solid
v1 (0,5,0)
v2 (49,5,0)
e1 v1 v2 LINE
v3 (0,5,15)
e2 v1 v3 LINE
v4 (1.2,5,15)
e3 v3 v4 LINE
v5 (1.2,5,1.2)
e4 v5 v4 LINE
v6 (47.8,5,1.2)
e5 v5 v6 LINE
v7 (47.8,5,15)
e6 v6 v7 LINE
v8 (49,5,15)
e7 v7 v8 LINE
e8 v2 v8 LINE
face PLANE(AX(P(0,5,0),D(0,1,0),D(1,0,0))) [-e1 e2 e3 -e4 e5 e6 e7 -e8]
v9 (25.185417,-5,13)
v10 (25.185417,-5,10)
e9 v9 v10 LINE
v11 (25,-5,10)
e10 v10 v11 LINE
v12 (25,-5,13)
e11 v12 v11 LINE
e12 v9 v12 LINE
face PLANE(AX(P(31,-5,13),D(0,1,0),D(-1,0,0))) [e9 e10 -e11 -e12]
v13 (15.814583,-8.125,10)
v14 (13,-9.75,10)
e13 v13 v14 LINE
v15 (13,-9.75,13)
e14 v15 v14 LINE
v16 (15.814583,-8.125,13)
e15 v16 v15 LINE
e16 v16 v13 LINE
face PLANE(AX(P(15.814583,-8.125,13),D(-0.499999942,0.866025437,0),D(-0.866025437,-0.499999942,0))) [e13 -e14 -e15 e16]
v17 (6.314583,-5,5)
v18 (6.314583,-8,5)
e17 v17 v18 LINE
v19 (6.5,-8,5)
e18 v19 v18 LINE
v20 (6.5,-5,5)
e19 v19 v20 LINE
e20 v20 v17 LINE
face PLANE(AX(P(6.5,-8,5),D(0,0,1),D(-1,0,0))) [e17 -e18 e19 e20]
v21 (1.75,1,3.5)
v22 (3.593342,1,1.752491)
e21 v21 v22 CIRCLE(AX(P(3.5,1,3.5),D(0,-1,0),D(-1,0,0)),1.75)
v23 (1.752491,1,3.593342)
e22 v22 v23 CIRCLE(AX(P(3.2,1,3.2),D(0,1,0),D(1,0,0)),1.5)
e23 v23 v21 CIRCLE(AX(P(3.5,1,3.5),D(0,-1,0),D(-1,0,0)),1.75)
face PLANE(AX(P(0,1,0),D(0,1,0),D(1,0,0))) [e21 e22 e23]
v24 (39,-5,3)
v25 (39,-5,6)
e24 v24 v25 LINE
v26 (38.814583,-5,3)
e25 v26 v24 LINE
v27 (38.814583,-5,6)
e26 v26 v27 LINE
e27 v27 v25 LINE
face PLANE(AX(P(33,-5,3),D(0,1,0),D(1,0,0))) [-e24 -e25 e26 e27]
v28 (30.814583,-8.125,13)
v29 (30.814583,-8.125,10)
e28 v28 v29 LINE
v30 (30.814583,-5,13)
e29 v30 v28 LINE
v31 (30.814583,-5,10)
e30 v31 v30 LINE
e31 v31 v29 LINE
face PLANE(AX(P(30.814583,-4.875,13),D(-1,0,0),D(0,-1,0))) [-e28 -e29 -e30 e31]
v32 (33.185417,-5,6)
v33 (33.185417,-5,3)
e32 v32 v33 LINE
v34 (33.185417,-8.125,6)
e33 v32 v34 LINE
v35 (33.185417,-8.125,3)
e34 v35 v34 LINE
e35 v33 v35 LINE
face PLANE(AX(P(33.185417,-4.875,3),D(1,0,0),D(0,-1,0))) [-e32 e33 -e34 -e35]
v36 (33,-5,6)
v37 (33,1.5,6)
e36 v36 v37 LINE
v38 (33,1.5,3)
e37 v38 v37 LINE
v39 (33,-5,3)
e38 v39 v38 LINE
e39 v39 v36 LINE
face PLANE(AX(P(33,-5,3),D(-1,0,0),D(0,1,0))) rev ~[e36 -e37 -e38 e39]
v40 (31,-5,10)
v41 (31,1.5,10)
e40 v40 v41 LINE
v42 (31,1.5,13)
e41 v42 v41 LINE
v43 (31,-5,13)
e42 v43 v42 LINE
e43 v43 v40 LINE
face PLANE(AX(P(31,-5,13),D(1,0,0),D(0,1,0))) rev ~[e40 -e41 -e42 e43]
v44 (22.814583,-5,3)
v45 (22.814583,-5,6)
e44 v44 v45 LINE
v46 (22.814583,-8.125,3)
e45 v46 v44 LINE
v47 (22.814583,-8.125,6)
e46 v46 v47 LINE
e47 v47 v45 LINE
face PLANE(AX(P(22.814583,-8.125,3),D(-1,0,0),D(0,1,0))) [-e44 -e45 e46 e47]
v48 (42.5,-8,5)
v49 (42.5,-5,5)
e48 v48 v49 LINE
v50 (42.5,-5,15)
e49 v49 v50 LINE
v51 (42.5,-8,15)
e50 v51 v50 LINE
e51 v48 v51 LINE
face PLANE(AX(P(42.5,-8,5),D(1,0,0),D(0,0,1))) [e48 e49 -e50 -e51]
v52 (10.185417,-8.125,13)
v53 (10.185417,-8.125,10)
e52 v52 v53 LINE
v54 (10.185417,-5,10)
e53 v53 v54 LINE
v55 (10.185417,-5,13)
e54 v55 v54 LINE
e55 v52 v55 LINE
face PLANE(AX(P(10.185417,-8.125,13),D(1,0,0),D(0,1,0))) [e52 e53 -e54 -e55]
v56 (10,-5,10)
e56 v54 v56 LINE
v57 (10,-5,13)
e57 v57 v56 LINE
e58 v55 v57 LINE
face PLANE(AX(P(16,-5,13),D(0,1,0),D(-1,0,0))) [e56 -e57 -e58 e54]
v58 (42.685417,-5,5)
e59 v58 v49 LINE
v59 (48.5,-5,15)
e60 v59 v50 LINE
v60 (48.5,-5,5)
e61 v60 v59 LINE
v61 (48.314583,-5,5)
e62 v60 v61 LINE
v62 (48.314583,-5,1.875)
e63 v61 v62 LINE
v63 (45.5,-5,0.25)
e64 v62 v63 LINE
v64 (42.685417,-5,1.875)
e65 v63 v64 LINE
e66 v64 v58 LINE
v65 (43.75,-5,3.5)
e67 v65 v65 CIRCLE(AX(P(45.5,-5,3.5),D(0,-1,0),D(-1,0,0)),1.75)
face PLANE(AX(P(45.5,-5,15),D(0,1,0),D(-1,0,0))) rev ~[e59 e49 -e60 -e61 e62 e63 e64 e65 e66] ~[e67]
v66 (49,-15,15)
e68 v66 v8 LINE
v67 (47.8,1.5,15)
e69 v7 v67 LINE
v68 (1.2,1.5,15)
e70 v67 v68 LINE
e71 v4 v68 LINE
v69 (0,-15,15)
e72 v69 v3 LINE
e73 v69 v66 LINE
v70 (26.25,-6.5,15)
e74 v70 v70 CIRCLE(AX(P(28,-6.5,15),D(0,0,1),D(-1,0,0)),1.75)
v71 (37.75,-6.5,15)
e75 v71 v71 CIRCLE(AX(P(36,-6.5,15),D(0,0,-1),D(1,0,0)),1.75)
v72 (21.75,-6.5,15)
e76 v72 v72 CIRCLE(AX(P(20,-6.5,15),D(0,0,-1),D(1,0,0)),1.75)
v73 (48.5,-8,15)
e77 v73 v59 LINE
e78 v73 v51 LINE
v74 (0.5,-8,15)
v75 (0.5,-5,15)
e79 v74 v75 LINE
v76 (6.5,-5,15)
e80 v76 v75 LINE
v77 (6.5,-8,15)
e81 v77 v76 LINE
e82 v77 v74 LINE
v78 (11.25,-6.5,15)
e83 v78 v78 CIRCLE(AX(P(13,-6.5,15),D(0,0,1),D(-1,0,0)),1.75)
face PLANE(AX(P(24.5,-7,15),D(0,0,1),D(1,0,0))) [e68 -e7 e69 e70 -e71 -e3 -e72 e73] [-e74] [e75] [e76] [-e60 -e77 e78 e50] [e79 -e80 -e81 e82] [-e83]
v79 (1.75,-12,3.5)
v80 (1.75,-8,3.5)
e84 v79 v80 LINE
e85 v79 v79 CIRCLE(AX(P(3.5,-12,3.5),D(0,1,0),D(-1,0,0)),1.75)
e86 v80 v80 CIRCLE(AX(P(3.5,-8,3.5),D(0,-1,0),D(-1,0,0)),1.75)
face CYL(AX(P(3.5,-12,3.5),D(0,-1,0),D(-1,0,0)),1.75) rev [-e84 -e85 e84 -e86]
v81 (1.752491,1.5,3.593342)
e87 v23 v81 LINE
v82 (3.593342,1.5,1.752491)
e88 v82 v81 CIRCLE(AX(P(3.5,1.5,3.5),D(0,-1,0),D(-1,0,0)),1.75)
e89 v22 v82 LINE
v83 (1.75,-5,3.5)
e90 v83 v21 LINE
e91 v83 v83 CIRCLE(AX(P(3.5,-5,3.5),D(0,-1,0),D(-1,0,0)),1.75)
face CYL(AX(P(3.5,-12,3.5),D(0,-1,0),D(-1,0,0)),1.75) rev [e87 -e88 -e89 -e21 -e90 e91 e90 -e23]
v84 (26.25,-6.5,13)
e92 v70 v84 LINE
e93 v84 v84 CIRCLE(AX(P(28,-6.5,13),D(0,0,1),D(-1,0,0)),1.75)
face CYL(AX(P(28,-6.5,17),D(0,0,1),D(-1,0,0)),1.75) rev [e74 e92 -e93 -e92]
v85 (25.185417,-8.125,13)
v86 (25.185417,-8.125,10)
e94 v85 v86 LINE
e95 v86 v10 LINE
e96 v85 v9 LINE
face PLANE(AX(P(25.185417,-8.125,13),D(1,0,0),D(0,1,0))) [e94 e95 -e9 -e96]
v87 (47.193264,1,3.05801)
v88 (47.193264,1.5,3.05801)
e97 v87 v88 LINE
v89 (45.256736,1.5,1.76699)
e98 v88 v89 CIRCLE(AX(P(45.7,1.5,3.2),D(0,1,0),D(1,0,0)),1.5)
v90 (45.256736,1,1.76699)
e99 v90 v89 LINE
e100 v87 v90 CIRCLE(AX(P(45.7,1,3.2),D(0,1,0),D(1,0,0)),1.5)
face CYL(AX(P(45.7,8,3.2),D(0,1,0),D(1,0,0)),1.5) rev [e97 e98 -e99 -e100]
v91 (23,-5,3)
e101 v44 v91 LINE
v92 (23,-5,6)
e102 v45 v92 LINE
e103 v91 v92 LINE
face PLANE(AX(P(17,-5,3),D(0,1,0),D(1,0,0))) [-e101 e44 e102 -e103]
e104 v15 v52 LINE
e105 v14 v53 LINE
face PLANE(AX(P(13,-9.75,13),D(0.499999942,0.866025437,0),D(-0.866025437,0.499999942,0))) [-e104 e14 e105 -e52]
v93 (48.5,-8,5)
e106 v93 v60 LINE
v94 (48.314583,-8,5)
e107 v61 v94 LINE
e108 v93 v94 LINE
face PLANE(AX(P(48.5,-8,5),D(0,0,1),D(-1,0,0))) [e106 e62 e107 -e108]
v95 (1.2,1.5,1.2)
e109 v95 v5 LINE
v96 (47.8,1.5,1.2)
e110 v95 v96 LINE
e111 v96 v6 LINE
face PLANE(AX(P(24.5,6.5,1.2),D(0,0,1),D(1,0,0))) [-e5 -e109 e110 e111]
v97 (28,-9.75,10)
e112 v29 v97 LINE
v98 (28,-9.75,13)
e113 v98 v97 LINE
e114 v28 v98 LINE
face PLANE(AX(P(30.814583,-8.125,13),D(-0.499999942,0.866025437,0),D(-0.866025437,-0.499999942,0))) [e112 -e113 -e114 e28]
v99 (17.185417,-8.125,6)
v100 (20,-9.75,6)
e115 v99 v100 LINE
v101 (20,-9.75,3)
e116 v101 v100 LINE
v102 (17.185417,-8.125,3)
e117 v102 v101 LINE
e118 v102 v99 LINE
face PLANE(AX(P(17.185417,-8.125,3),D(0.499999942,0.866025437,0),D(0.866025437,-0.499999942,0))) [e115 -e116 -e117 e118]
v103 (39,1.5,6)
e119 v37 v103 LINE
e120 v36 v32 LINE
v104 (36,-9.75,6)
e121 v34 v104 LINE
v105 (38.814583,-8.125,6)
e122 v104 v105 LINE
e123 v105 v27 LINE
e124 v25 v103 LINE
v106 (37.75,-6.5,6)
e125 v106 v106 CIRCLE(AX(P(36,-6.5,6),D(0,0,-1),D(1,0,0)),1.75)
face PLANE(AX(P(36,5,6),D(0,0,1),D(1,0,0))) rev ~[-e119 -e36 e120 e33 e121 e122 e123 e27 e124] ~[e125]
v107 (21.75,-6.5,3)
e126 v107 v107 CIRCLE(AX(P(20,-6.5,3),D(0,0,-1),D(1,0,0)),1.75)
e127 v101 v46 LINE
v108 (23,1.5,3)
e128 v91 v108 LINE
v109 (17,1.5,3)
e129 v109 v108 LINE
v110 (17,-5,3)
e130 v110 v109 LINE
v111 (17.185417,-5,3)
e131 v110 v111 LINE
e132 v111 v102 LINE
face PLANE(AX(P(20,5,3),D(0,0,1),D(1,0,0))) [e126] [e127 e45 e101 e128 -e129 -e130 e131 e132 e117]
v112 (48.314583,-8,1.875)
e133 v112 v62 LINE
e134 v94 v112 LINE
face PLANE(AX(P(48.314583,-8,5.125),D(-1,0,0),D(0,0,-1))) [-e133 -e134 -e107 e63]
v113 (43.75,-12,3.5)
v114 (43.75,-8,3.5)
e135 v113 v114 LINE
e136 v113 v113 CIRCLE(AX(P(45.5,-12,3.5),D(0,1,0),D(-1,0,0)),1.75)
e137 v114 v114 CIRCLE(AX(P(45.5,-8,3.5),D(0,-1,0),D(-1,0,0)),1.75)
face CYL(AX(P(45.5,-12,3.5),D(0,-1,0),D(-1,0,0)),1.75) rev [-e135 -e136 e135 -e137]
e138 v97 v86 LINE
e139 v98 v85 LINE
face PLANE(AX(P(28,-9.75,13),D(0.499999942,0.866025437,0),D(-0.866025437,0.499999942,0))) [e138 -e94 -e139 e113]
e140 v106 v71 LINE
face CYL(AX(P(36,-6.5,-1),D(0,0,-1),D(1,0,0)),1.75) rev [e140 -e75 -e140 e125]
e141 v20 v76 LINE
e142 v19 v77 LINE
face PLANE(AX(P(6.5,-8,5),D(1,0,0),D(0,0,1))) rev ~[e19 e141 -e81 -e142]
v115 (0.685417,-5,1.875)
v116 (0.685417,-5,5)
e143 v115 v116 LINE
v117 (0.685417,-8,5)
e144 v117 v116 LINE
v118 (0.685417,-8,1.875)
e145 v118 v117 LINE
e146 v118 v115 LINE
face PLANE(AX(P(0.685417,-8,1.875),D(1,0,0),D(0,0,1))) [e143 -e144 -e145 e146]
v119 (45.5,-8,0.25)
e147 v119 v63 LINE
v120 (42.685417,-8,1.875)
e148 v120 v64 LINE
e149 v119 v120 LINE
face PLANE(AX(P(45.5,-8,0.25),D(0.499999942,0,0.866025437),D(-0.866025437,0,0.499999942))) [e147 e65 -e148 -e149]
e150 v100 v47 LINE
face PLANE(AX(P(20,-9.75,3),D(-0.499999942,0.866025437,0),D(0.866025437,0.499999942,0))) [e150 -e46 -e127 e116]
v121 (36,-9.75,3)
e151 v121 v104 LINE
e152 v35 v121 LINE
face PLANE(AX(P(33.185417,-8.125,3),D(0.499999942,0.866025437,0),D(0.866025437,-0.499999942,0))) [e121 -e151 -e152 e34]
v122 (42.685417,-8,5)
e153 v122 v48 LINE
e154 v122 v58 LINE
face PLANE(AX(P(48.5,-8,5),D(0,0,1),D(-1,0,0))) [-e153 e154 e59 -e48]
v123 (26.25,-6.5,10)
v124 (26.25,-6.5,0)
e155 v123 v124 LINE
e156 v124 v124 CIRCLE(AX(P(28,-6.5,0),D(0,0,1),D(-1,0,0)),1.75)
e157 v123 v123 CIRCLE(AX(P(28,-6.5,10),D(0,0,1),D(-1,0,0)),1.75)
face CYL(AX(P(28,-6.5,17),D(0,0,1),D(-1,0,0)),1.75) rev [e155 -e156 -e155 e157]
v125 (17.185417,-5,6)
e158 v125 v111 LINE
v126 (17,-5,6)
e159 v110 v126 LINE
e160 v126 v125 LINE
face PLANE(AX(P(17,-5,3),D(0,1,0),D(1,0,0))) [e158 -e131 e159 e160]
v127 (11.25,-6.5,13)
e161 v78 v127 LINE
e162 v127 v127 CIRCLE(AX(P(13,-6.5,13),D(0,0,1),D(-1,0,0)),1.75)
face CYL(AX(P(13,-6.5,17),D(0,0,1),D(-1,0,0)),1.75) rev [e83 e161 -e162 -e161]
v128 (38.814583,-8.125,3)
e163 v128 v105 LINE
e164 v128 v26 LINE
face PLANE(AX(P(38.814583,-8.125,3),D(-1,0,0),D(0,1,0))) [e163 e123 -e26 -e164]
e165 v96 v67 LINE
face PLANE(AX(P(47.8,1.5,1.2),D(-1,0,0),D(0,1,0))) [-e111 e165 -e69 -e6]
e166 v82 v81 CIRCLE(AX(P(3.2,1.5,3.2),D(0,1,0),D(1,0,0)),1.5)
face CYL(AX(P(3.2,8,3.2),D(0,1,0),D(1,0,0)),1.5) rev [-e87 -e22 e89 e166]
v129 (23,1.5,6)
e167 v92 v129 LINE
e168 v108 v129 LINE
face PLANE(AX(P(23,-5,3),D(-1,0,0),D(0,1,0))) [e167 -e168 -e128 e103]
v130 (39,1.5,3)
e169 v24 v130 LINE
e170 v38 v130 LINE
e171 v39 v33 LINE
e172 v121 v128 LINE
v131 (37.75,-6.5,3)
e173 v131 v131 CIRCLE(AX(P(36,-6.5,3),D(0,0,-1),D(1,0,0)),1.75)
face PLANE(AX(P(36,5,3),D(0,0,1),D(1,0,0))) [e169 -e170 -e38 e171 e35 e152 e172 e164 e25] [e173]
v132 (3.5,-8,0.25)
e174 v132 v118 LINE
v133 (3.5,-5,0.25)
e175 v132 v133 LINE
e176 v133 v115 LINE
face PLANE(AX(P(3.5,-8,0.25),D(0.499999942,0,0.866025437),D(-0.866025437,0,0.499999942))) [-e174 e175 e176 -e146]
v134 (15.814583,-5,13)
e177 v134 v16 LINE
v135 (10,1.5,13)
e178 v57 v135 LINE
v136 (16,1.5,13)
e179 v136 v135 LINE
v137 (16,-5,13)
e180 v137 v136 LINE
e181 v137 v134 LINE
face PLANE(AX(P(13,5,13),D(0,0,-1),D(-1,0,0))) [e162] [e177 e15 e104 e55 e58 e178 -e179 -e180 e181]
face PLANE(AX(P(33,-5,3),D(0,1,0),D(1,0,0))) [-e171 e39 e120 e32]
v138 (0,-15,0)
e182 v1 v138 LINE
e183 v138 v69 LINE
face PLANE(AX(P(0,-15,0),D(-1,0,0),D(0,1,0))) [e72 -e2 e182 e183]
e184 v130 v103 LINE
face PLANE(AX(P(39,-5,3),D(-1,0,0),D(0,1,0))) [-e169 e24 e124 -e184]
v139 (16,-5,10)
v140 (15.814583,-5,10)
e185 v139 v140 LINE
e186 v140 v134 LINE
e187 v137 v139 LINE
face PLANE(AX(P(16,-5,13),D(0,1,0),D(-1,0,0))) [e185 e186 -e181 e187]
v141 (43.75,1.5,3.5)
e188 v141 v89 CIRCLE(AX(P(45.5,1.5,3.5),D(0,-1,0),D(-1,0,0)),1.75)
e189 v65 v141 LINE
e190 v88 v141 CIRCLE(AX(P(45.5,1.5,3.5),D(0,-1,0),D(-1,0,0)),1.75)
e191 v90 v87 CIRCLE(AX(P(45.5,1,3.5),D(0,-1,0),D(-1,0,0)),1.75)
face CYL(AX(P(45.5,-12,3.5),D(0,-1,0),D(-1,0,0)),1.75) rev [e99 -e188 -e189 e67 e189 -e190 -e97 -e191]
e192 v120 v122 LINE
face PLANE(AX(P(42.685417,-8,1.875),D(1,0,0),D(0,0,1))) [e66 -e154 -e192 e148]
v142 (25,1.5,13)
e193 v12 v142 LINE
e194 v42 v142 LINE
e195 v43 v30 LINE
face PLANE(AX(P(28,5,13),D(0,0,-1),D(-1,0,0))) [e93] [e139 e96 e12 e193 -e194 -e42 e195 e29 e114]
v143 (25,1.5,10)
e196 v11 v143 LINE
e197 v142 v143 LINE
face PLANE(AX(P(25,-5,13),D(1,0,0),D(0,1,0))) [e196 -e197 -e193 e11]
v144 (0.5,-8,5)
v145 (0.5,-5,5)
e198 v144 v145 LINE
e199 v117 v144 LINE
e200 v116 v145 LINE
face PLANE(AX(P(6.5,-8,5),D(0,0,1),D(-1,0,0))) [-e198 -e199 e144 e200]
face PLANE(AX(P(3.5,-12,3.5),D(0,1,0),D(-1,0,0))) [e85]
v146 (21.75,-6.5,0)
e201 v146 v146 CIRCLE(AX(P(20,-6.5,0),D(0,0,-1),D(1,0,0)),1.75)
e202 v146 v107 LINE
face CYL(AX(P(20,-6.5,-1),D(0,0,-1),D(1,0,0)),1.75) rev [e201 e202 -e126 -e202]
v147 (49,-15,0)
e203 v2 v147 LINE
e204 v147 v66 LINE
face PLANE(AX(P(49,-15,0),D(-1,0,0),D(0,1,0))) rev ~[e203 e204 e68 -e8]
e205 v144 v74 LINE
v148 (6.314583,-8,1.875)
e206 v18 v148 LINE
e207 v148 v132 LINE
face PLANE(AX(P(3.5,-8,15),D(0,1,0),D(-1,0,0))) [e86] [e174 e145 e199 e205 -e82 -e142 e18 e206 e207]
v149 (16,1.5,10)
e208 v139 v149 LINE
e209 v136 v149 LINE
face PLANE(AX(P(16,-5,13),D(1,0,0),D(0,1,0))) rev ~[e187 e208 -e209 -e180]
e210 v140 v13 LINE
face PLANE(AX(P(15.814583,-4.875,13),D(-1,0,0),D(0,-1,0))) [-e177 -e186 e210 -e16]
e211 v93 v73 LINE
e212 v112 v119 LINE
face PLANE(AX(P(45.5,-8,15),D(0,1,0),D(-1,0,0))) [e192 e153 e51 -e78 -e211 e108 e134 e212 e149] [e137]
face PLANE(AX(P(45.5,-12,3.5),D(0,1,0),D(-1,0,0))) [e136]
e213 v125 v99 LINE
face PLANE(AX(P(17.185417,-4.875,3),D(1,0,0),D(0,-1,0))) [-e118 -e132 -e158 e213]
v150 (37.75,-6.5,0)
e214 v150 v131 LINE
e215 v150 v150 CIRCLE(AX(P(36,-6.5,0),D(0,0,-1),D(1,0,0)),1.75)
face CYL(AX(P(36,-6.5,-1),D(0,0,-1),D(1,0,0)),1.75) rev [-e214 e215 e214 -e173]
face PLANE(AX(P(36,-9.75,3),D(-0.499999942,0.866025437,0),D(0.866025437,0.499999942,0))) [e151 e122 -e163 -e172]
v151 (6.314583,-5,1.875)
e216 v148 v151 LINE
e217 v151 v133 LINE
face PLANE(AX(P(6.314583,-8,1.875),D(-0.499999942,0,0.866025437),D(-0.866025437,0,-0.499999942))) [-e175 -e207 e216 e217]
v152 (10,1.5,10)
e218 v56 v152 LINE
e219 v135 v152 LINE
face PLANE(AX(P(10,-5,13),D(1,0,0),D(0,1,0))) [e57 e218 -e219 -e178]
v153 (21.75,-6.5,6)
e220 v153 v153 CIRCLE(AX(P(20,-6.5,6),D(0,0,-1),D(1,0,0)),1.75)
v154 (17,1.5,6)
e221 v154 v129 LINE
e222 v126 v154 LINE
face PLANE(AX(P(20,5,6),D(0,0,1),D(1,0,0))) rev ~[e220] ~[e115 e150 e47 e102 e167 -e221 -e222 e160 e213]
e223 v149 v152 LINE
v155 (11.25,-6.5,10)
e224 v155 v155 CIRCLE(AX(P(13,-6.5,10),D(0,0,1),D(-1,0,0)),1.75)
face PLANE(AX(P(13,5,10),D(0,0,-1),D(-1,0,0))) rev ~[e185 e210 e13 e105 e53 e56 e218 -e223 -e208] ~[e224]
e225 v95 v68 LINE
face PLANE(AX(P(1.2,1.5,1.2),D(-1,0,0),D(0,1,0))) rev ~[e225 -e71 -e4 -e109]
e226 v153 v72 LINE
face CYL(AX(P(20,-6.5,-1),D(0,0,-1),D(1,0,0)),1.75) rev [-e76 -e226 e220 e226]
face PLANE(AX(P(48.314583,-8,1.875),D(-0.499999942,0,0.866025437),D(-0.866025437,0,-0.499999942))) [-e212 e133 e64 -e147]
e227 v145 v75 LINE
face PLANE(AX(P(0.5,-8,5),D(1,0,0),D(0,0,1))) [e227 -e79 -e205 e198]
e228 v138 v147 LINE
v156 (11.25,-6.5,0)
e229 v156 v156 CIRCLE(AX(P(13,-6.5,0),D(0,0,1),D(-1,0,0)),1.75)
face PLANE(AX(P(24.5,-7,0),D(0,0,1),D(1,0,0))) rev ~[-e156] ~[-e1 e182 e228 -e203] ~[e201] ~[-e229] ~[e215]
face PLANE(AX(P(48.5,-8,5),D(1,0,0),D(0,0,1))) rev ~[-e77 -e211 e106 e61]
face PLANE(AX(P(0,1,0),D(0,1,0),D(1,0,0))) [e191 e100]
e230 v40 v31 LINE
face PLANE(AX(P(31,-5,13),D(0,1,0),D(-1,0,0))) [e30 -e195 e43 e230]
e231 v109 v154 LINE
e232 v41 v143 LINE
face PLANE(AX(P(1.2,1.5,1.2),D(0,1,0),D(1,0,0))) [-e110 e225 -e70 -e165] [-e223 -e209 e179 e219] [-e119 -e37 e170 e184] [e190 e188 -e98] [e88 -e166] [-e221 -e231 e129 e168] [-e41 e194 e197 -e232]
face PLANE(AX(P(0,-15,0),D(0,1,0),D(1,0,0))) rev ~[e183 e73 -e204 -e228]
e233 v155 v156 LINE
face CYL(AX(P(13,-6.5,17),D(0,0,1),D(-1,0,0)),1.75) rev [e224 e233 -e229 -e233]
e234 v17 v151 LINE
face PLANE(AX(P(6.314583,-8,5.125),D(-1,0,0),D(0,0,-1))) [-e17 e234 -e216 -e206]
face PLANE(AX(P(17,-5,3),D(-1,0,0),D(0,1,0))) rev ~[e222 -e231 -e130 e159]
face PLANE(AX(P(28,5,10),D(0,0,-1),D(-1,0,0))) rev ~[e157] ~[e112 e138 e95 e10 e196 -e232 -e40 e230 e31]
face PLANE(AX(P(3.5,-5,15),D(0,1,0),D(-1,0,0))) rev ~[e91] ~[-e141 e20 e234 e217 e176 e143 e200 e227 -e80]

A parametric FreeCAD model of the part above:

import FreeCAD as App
import Part
import Sketcher
Q = App.Units.Quantity


def add_polygon(sketch, points):
    """Adds a closed chain of lines whose ends are joined by coincident constraints."""
    first, n = sketch.GeometryCount, len(points)
    for a, b in zip(points, points[1:] + points[:1]):
        sketch.addGeometry(Part.LineSegment(App.Vector(*a, 0), App.Vector(*b, 0)), False)
    for i in range(n):
        sketch.addConstraint(Sketcher.Constraint("Coincident", first + i, 2, first + (i + 1) % n, 1))

doc = App.newDocument("Part")
params = doc.addObject("Spreadsheet::Sheet", "Params")
for row, (alias, value) in enumerate([
    ("sketch1_height", "3.25 mm"),
    ("pad1_length", "3 mm"),
    ("sketch2_diameter", "3.5 mm"),
    ("pad2_length", "20 mm"),
    ("sketch3_width", "6 mm"),
    ("sketch3_height", "20 mm"),
    ("pad3_length", "3 mm"),
    ("sketch4_height", "3.25 mm"),
    ("pad4_length", "3 mm"),
    ("sketch5_diameter", "3.5 mm"),
    ("pad5_length", "20 mm"),
    ("sketch6_width", "6 mm"),
    ("sketch6_height", "20 mm"),
    ("pad6_length", "3 mm"),
    ("sketch7_height", "3.25 mm"),
    ("pad7_length", "3 mm"),
    ("sketch8_diameter", "3.5 mm"),
    ("pad8_length", "20 mm"),
    ("sketch9_width", "6 mm"),
    ("sketch9_height", "20 mm"),
    ("pad9_length", "3 mm"),
    ("sketch10_height", "3.25 mm"),
    ("pad10_length", "3 mm"),
    ("sketch11_diameter", "3.5 mm"),
    ("pad11_length", "20 mm"),
    ("sketch12_width", "6 mm"),
    ("sketch12_height", "20 mm"),
    ("pad12_length", "3 mm"),
    ("sketch13_height", "3.25 mm"),
    ("pad13_length", "3 mm"),
    ("sketch14_diameter", "3.5 mm"),
    ("pad14_length", "20 mm"),
    ("sketch15_width", "6 mm"),
    ("sketch15_height", "20 mm"),
    ("pad15_length", "3 mm"),
    ("sketch16_height", "3.25 mm"),
    ("pad16_length", "3 mm"),
    ("sketch17_diameter", "3.5 mm"),
    ("pad17_length", "20 mm"),
    ("sketch18_width", "6 mm"),
    ("sketch18_height", "20 mm"),
    ("pad18_length", "3 mm"),
    ("sketch19_diameter", "3 mm"),
    ("pad19_length", "10 mm"),
    ("sketch20_diameter", "3 mm"),
    ("pad20_length", "10 mm"),
    ("sketch21_height", "10 mm"),
    ("sketch21_width", "46.6 mm"),
    ("pad21_length", "21 mm"),
    ("sketch22_width", "49 mm"),
    ("sketch22_height", "5 mm"),
    ("pad22_length", "15 mm"),
    ("sketch23_width", "49 mm"),
    ("sketch23_height", "16 mm"),
    ("pad23_length", "15 mm"),
], start=1):
    params.set(f"A{row}", alias)
    params.set(f"B{row}", "=" + value)
    params.setAlias(f"B{row}", alias)

body = doc.addObject("PartDesign::Body", "Body")

sketch1 = doc.addObject("Sketcher::SketchObject", "Sketch")
body.addObject(sketch1)
sketch1.AttachmentSupport = (doc.XY_Plane, [""])
sketch1.MapMode = "FlatFace"
sketch1.AttachmentOffset = App.Placement(App.Vector(0, 0, 3), App.Rotation())
add_polygon(sketch1, [(34, 10.8), (31.2, 9.1), (31.2, 5.9), (34, 4.2), (36.8, 5.9), (36.8, 9.1)])
sketch1.addConstraint([
    Sketcher.Constraint("Vertical", 1),
    Sketcher.Constraint("Vertical", 4),
    Sketcher.Constraint("Parallel", 0, 3),
    Sketcher.Constraint("Parallel", 2, 5),
    Sketcher.Constraint("Horizontal", 1, 2, 3, 2),
    Sketcher.Constraint("Horizontal", 0, 2, 4, 2),
    Sketcher.Constraint("Vertical", 2, 2, 5, 2),
    Sketcher.Constraint("Angle", 0, Q("-150.000004 deg")),
    Sketcher.Constraint("DistanceX", -1, 1, 2, 2, 34.0),
    Sketcher.Constraint("DistanceY", 1, 2, 1, 1, 3.25),
    Sketcher.Constraint("DistanceY", 2, 2, 5, 2, 6.5),
    Sketcher.Constraint("DistanceY", -1, 1, 2, 2, 4.25),
])
sketch1.setExpression("Constraints[15]", "Params.sketch1_height")
pad1 = doc.addObject("PartDesign::Pad", "Pad")
body.addObject(pad1)
pad1.Profile = sketch1
pad1.setExpression("Length", "Params.pad1_length")
body2 = doc.addObject("PartDesign::Body", "Body001")

sketch2 = doc.addObject("Sketcher::SketchObject", "Sketch001")
body2.addObject(sketch2)
sketch2.AttachmentSupport = (doc.getObject("XY_Plane001"), [""])
sketch2.MapMode = "FlatFace"
sketch2.AttachmentOffset = App.Placement(App.Vector(0, 0, -1), App.Rotation())
sketch2.addGeometry(Part.Circle(App.Vector(34, 7.5, 0), App.Vector(0, 0, 1), 1.8), False)
sketch2.addConstraint([
    Sketcher.Constraint("Diameter", 0, 3.5),
    Sketcher.Constraint("DistanceX", -1, 1, 0, 3, 34.0),
    Sketcher.Constraint("DistanceY", -1, 1, 0, 3, 7.5),
])
sketch2.setExpression("Constraints[0]", "Params.sketch2_diameter")
pad2 = doc.addObject("PartDesign::Pad", "Pad001")
body2.addObject(pad2)
pad2.Profile = sketch2
pad2.setExpression("Length", "Params.pad2_length")
body3 = doc.addObject("PartDesign::Body", "Body002")

sketch3 = doc.addObject("Sketcher::SketchObject", "Sketch002")
body3.addObject(sketch3)
sketch3.AttachmentSupport = (doc.getObject("XY_Plane002"), [""])
sketch3.MapMode = "FlatFace"
sketch3.AttachmentOffset = App.Placement(App.Vector(0, 0, 3), App.Rotation())
add_polygon(sketch3, [(31, 29), (31, 9), (37, 9), (37, 29)])
sketch3.addConstraint([
    Sketcher.Constraint("Vertical", 0),
    Sketcher.Constraint("Horizontal", 1),
    Sketcher.Constraint("Vertical", 2),
    Sketcher.Constraint("Horizontal", 3),
    Sketcher.Constraint("DistanceX", 1, 1, 1, 2, 6.0),
    Sketcher.Constraint("DistanceY", 0, 2, 0, 1, 20.0),
    Sketcher.Constraint("DistanceX", -1, 1, 0, 2, 31.0),
    Sketcher.Constraint("DistanceY", -1, 1, 0, 2, 9.0),
])
sketch3.setExpression("Constraints[8]", "Params.sketch3_width")
sketch3.setExpression("Constraints[9]", "Params.sketch3_height")
pad3 = doc.addObject("PartDesign::Pad", "Pad002")
body3.addObject(pad3)
pad3.Profile = sketch3
pad3.setExpression("Length", "Params.pad3_length")
doc.recompute()

boolean = doc.addObject("PartDesign::Boolean", "Boolean")
body3.addObject(boolean)
boolean.Type = "Fuse"
boolean.addObjects([body])
doc.recompute()

boolean2 = doc.addObject("PartDesign::Boolean", "Boolean001")
body3.addObject(boolean2)
boolean2.Type = "Fuse"
boolean2.addObjects([body2])
body4 = doc.addObject("PartDesign::Body", "Body003")
doc.recompute()

body3.Placement = App.Placement(App.Vector(-14, -3, 16), App.Rotation(App.Vector(1, 0, 0), 180))
boolean3 = doc.addObject("PartDesign::Boolean", "Boolean002")
body4.addObject(boolean3)
boolean3.Type = "Fuse"
boolean3.addObjects([body3])
body5 = doc.addObject("PartDesign::Body", "Body004")

sketch4 = doc.addObject("Sketcher::SketchObject", "Sketch003")
body5.addObject(sketch4)
sketch4.AttachmentSupport = (doc.getObject("XY_Plane004"), [""])
sketch4.MapMode = "FlatFace"
sketch4.AttachmentOffset = App.Placement(App.Vector(0, 0, 3), App.Rotation())
add_polygon(sketch4, [(34, 10.8), (31.2, 9.1), (31.2, 5.9), (34, 4.2), (36.8, 5.9), (36.8, 9.1)])
sketch4.addConstraint([
    Sketcher.Constraint("Vertical", 1),
    Sketcher.Constraint("Vertical", 4),
    Sketcher.Constraint("Parallel", 0, 3),
    Sketcher.Constraint("Parallel", 2, 5),
    Sketcher.Constraint("Horizontal", 1, 2, 3, 2),
    Sketcher.Constraint("Horizontal", 0, 2, 4, 2),
    Sketcher.Constraint("Vertical", 2, 2, 5, 2),
    Sketcher.Constraint("Angle", 0, Q("-150.000004 deg")),
    Sketcher.Constraint("DistanceX", -1, 1, 2, 2, 34.0),
    Sketcher.Constraint("DistanceY", 1, 2, 1, 1, 3.25),
    Sketcher.Constraint("DistanceY", 2, 2, 5, 2, 6.5),
    Sketcher.Constraint("DistanceY", -1, 1, 2, 2, 4.25),
])
sketch4.setExpression("Constraints[15]", "Params.sketch4_height")
pad4 = doc.addObject("PartDesign::Pad", "Pad003")
body5.addObject(pad4)
pad4.Profile = sketch4
pad4.setExpression("Length", "Params.pad4_length")
body6 = doc.addObject("PartDesign::Body", "Body005")

sketch5 = doc.addObject("Sketcher::SketchObject", "Sketch004")
body6.addObject(sketch5)
sketch5.AttachmentSupport = (doc.getObject("XY_Plane005"), [""])
sketch5.MapMode = "FlatFace"
sketch5.AttachmentOffset = App.Placement(App.Vector(0, 0, -1), App.Rotation())
sketch5.addGeometry(Part.Circle(App.Vector(34, 7.5, 0), App.Vector(0, 0, 1), 1.8), False)
sketch5.addConstraint([
    Sketcher.Constraint("Diameter", 0, 3.5),
    Sketcher.Constraint("DistanceX", -1, 1, 0, 3, 34.0),
    Sketcher.Constraint("DistanceY", -1, 1, 0, 3, 7.5),
])
sketch5.setExpression("Constraints[0]", "Params.sketch5_diameter")
pad5 = doc.addObject("PartDesign::Pad", "Pad004")
body6.addObject(pad5)
pad5.Profile = sketch5
pad5.setExpression("Length", "Params.pad5_length")
body7 = doc.addObject("PartDesign::Body", "Body006")

sketch6 = doc.addObject("Sketcher::SketchObject", "Sketch005")
body7.addObject(sketch6)
sketch6.AttachmentSupport = (doc.getObject("XY_Plane006"), [""])
sketch6.MapMode = "FlatFace"
sketch6.AttachmentOffset = App.Placement(App.Vector(0, 0, 3), App.Rotation())
add_polygon(sketch6, [(31, 29), (31, 9), (37, 9), (37, 29)])
sketch6.addConstraint([
    Sketcher.Constraint("Vertical", 0),
    Sketcher.Constraint("Horizontal", 1),
    Sketcher.Constraint("Vertical", 2),
    Sketcher.Constraint("Horizontal", 3),
    Sketcher.Constraint("DistanceX", 1, 1, 1, 2, 6.0),
    Sketcher.Constraint("DistanceY", 0, 2, 0, 1, 20.0),
    Sketcher.Constraint("DistanceX", -1, 1, 0, 2, 31.0),
    Sketcher.Constraint("DistanceY", -1, 1, 0, 2, 9.0),
])
sketch6.setExpression("Constraints[8]", "Params.sketch6_width")
sketch6.setExpression("Constraints[9]", "Params.sketch6_height")
pad6 = doc.addObject("PartDesign::Pad", "Pad005")
body7.addObject(pad6)
pad6.Profile = sketch6
pad6.setExpression("Length", "Params.pad6_length")
doc.recompute()

boolean4 = doc.addObject("PartDesign::Boolean", "Boolean003")
body7.addObject(boolean4)
boolean4.Type = "Fuse"
boolean4.addObjects([body5])
doc.recompute()

boolean5 = doc.addObject("PartDesign::Boolean", "Boolean004")
body7.addObject(boolean5)
boolean5.Type = "Fuse"
boolean5.addObjects([body6])
body8 = doc.addObject("PartDesign::Body", "Body007")
body8.AllowCompound = True
doc.recompute()

body7.Placement = App.Placement(App.Vector(2, -3, 16), App.Rotation(App.Vector(1, 0, 0), 180))
boolean6 = doc.addObject("PartDesign::Boolean", "Boolean005")
body8.addObject(boolean6)
boolean6.Type = "Fuse"
boolean6.addObjects([body7])
doc.recompute()

boolean7 = doc.addObject("PartDesign::Boolean", "Boolean006")
body8.addObject(boolean7)
boolean7.Type = "Fuse"
boolean7.addObjects([body4])
body9 = doc.addObject("PartDesign::Body", "Body008")

sketch7 = doc.addObject("Sketcher::SketchObject", "Sketch006")
body9.addObject(sketch7)
sketch7.AttachmentSupport = (doc.getObject("XY_Plane008"), [""])
sketch7.MapMode = "FlatFace"
sketch7.AttachmentOffset = App.Placement(App.Vector(0, 0, 3), App.Rotation())
add_polygon(sketch7, [(34, 10.8), (31.2, 9.1), (31.2, 5.9), (34, 4.2), (36.8, 5.9), (36.8, 9.1)])
sketch7.addConstraint([
    Sketcher.Constraint("Vertical", 1),
    Sketcher.Constraint("Vertical", 4),
    Sketcher.Constraint("Parallel", 0, 3),
    Sketcher.Constraint("Parallel", 2, 5),
    Sketcher.Constraint("Horizontal", 1, 2, 3, 2),
    Sketcher.Constraint("Horizontal", 0, 2, 4, 2),
    Sketcher.Constraint("Vertical", 2, 2, 5, 2),
    Sketcher.Constraint("Angle", 0, Q("-150.000004 deg")),
    Sketcher.Constraint("DistanceX", -1, 1, 2, 2, 34.0),
    Sketcher.Constraint("DistanceY", 1, 2, 1, 1, 3.25),
    Sketcher.Constraint("DistanceY", 2, 2, 5, 2, 6.5),
    Sketcher.Constraint("DistanceY", -1, 1, 2, 2, 4.25),
])
sketch7.setExpression("Constraints[15]", "Params.sketch7_height")
pad7 = doc.addObject("PartDesign::Pad", "Pad006")
body9.addObject(pad7)
pad7.Profile = sketch7
pad7.setExpression("Length", "Params.pad7_length")
body10 = doc.addObject("PartDesign::Body", "Body009")

sketch8 = doc.addObject("Sketcher::SketchObject", "Sketch007")
body10.addObject(sketch8)
sketch8.AttachmentSupport = (doc.getObject("XY_Plane009"), [""])
sketch8.MapMode = "FlatFace"
sketch8.AttachmentOffset = App.Placement(App.Vector(0, 0, -1), App.Rotation())
sketch8.addGeometry(Part.Circle(App.Vector(34, 7.5, 0), App.Vector(0, 0, 1), 1.8), False)
sketch8.addConstraint([
    Sketcher.Constraint("Diameter", 0, 3.5),
    Sketcher.Constraint("DistanceX", -1, 1, 0, 3, 34.0),
    Sketcher.Constraint("DistanceY", -1, 1, 0, 3, 7.5),
])
sketch8.setExpression("Constraints[0]", "Params.sketch8_diameter")
pad8 = doc.addObject("PartDesign::Pad", "Pad007")
body10.addObject(pad8)
pad8.Profile = sketch8
pad8.setExpression("Length", "Params.pad8_length")
body11 = doc.addObject("PartDesign::Body", "Body010")

sketch9 = doc.addObject("Sketcher::SketchObject", "Sketch008")
body11.addObject(sketch9)
sketch9.AttachmentSupport = (doc.getObject("XY_Plane010"), [""])
sketch9.MapMode = "FlatFace"
sketch9.AttachmentOffset = App.Placement(App.Vector(0, 0, 3), App.Rotation())
add_polygon(sketch9, [(31, 29), (31, 9), (37, 9), (37, 29)])
sketch9.addConstraint([
    Sketcher.Constraint("Vertical", 0),
    Sketcher.Constraint("Horizontal", 1),
    Sketcher.Constraint("Vertical", 2),
    Sketcher.Constraint("Horizontal", 3),
    Sketcher.Constraint("DistanceX", 1, 1, 1, 2, 6.0),
    Sketcher.Constraint("DistanceY", 0, 2, 0, 1, 20.0),
    Sketcher.Constraint("DistanceX", -1, 1, 0, 2, 31.0),
    Sketcher.Constraint("DistanceY", -1, 1, 0, 2, 9.0),
])
sketch9.setExpression("Constraints[8]", "Params.sketch9_width")
sketch9.setExpression("Constraints[9]", "Params.sketch9_height")
pad9 = doc.addObject("PartDesign::Pad", "Pad008")
body11.addObject(pad9)
pad9.Profile = sketch9
pad9.setExpression("Length", "Params.pad9_length")
doc.recompute()

boolean8 = doc.addObject("PartDesign::Boolean", "Boolean007")
body11.addObject(boolean8)
boolean8.Type = "Fuse"
boolean8.addObjects([body9])
doc.recompute()

boolean9 = doc.addObject("PartDesign::Boolean", "Boolean008")
body11.addObject(boolean9)
boolean9.Type = "Fuse"
boolean9.addObjects([body10])
body12 = doc.addObject("PartDesign::Body", "Body011")
doc.recompute()

body11.Placement = App.Placement(App.Vector(47, -3, 0), App.Rotation(App.Vector(0, 0, 1), 180))
boolean10 = doc.addObject("PartDesign::Boolean", "Boolean009")
body12.addObject(boolean10)
boolean10.Type = "Fuse"
boolean10.addObjects([body11])
body13 = doc.addObject("PartDesign::Body", "Body012")

sketch10 = doc.addObject("Sketcher::SketchObject", "Sketch009")
body13.addObject(sketch10)
sketch10.AttachmentSupport = (doc.getObject("XY_Plane012"), [""])
sketch10.MapMode = "FlatFace"
sketch10.AttachmentOffset = App.Placement(App.Vector(0, 0, 3), App.Rotation())
add_polygon(sketch10, [(34, 10.8), (31.2, 9.1), (31.2, 5.9), (34, 4.2), (36.8, 5.9), (36.8, 9.1)])
sketch10.addConstraint([
    Sketcher.Constraint("Vertical", 1),
    Sketcher.Constraint("Vertical", 4),
    Sketcher.Constraint("Parallel", 0, 3),
    Sketcher.Constraint("Parallel", 2, 5),
    Sketcher.Constraint("Horizontal", 1, 2, 3, 2),
    Sketcher.Constraint("Horizontal", 0, 2, 4, 2),
    Sketcher.Constraint("Vertical", 2, 2, 5, 2),
    Sketcher.Constraint("Angle", 0, Q("-150.000004 deg")),
    Sketcher.Constraint("DistanceX", -1, 1, 2, 2, 34.0),
    Sketcher.Constraint("DistanceY", 1, 2, 1, 1, 3.25),
    Sketcher.Constraint("DistanceY", 2, 2, 5, 2, 6.5),
    Sketcher.Constraint("DistanceY", -1, 1, 2, 2, 4.25),
])
sketch10.setExpression("Constraints[15]", "Params.sketch10_height")
pad10 = doc.addObject("PartDesign::Pad", "Pad009")
body13.addObject(pad10)
pad10.Profile = sketch10
pad10.setExpression("Length", "Params.pad10_length")
body14 = doc.addObject("PartDesign::Body", "Body013")

sketch11 = doc.addObject("Sketcher::SketchObject", "Sketch010")
body14.addObject(sketch11)
sketch11.AttachmentSupport = (doc.getObject("XY_Plane013"), [""])
sketch11.MapMode = "FlatFace"
sketch11.AttachmentOffset = App.Placement(App.Vector(0, 0, -1), App.Rotation())
sketch11.addGeometry(Part.Circle(App.Vector(34, 7.5, 0), App.Vector(0, 0, 1), 1.8), False)
sketch11.addConstraint([
    Sketcher.Constraint("Diameter", 0, 3.5),
    Sketcher.Constraint("DistanceX", -1, 1, 0, 3, 34.0),
    Sketcher.Constraint("DistanceY", -1, 1, 0, 3, 7.5),
])
sketch11.setExpression("Constraints[0]", "Params.sketch11_diameter")
pad11 = doc.addObject("PartDesign::Pad", "Pad010")
body14.addObject(pad11)
pad11.Profile = sketch11
pad11.setExpression("Length", "Params.pad11_length")
body15 = doc.addObject("PartDesign::Body", "Body014")

sketch12 = doc.addObject("Sketcher::SketchObject", "Sketch011")
body15.addObject(sketch12)
sketch12.AttachmentSupport = (doc.getObject("XY_Plane014"), [""])
sketch12.MapMode = "FlatFace"
sketch12.AttachmentOffset = App.Placement(App.Vector(0, 0, 3), App.Rotation())
add_polygon(sketch12, [(31, 29), (31, 9), (37, 9), (37, 29)])
sketch12.addConstraint([
    Sketcher.Constraint("Vertical", 0),
    Sketcher.Constraint("Horizontal", 1),
    Sketcher.Constraint("Vertical", 2),
    Sketcher.Constraint("Horizontal", 3),
    Sketcher.Constraint("DistanceX", 1, 1, 1, 2, 6.0),
    Sketcher.Constraint("DistanceY", 0, 2, 0, 1, 20.0),
    Sketcher.Constraint("DistanceX", -1, 1, 0, 2, 31.0),
    Sketcher.Constraint("DistanceY", -1, 1, 0, 2, 9.0),
])
sketch12.setExpression("Constraints[8]", "Params.sketch12_width")
sketch12.setExpression("Constraints[9]", "Params.sketch12_height")
pad12 = doc.addObject("PartDesign::Pad", "Pad011")
body15.addObject(pad12)
pad12.Profile = sketch12
pad12.setExpression("Length", "Params.pad12_length")
doc.recompute()

boolean11 = doc.addObject("PartDesign::Boolean", "Boolean010")
body15.addObject(boolean11)
boolean11.Type = "Fuse"
boolean11.addObjects([body13])
doc.recompute()

boolean12 = doc.addObject("PartDesign::Boolean", "Boolean011")
body15.addObject(boolean12)
boolean12.Type = "Fuse"
boolean12.addObjects([body14])
body16 = doc.addObject("PartDesign::Body", "Body015")
body16.AllowCompound = True
doc.recompute()

body15.Placement = App.Placement(App.Vector(62, -3, 0), App.Rotation(App.Vector(0, 0, 1), 180))
boolean13 = doc.addObject("PartDesign::Boolean", "Boolean012")
body16.addObject(boolean13)
boolean13.Type = "Fuse"
boolean13.addObjects([body15])
doc.recompute()

boolean14 = doc.addObject("PartDesign::Boolean", "Boolean013")
body16.addObject(boolean14)
boolean14.Type = "Fuse"
boolean14.addObjects([body12])
doc.recompute()

boolean15 = doc.addObject("PartDesign::Boolean", "Boolean014")
body16.addObject(boolean15)
boolean15.Type = "Fuse"
boolean15.addObjects([body8])
body17 = doc.addObject("PartDesign::Body", "Body016")
body17.AllowCompound = True
doc.recompute()

body16.Placement = App.Placement(App.Vector(0, -17, 16), App.Rotation(App.Vector(1, 0, 0), 180))
boolean16 = doc.addObject("PartDesign::Boolean", "Boolean015")
body17.addObject(boolean16)
boolean16.Type = "Fuse"
boolean16.addObjects([body16])
body18 = doc.addObject("PartDesign::Body", "Body017")

sketch13 = doc.addObject("Sketcher::SketchObject", "Sketch012")
body18.addObject(sketch13)
sketch13.AttachmentSupport = (doc.getObject("XY_Plane017"), [""])
sketch13.MapMode = "FlatFace"
sketch13.AttachmentOffset = App.Placement(App.Vector(0, 0, 3), App.Rotation())
add_polygon(sketch13, [(34, 10.8), (31.2, 9.1), (31.2, 5.9), (34, 4.2), (36.8, 5.9), (36.8, 9.1)])
sketch13.addConstraint([
    Sketcher.Constraint("Vertical", 1),
    Sketcher.Constraint("Vertical", 4),
    Sketcher.Constraint("Parallel", 0, 3),
    Sketcher.Constraint("Parallel", 2, 5),
    Sketcher.Constraint("Horizontal", 1, 2, 3, 2),
    Sketcher.Constraint("Horizontal", 0, 2, 4, 2),
    Sketcher.Constraint("Vertical", 2, 2, 5, 2),
    Sketcher.Constraint("Angle", 0, Q("-150.000004 deg")),
    Sketcher.Constraint("DistanceX", -1, 1, 2, 2, 34.0),
    Sketcher.Constraint("DistanceY", 1, 2, 1, 1, 3.25),
    Sketcher.Constraint("DistanceY", 2, 2, 5, 2, 6.5),
    Sketcher.Constraint("DistanceY", -1, 1, 2, 2, 4.25),
])
sketch13.setExpression("Constraints[15]", "Params.sketch13_height")
pad13 = doc.addObject("PartDesign::Pad", "Pad012")
body18.addObject(pad13)
pad13.Profile = sketch13
pad13.setExpression("Length", "Params.pad13_length")
body19 = doc.addObject("PartDesign::Body", "Body018")

sketch14 = doc.addObject("Sketcher::SketchObject", "Sketch013")
body19.addObject(sketch14)
sketch14.AttachmentSupport = (doc.getObject("XY_Plane018"), [""])
sketch14.MapMode = "FlatFace"
sketch14.AttachmentOffset = App.Placement(App.Vector(0, 0, -1), App.Rotation())
sketch14.addGeometry(Part.Circle(App.Vector(34, 7.5, 0), App.Vector(0, 0, 1), 1.8), False)
sketch14.addConstraint([
    Sketcher.Constraint("Diameter", 0, 3.5),
    Sketcher.Constraint("DistanceX", -1, 1, 0, 3, 34.0),
    Sketcher.Constraint("DistanceY", -1, 1, 0, 3, 7.5),
])
sketch14.setExpression("Constraints[0]", "Params.sketch14_diameter")
pad14 = doc.addObject("PartDesign::Pad", "Pad013")
body19.addObject(pad14)
pad14.Profile = sketch14
pad14.setExpression("Length", "Params.pad14_length")
body20 = doc.addObject("PartDesign::Body", "Body019")

sketch15 = doc.addObject("Sketcher::SketchObject", "Sketch014")
body20.addObject(sketch15)
sketch15.AttachmentSupport = (doc.getObject("XY_Plane019"), [""])
sketch15.MapMode = "FlatFace"
sketch15.AttachmentOffset = App.Placement(App.Vector(0, 0, 3), App.Rotation())
add_polygon(sketch15, [(31, 29), (31, 9), (37, 9), (37, 29)])
sketch15.addConstraint([
    Sketcher.Constraint("Vertical", 0),
    Sketcher.Constraint("Horizontal", 1),
    Sketcher.Constraint("Vertical", 2),
    Sketcher.Constraint("Horizontal", 3),
    Sketcher.Constraint("DistanceX", 1, 1, 1, 2, 6.0),
    Sketcher.Constraint("DistanceY", 0, 2, 0, 1, 20.0),
    Sketcher.Constraint("DistanceX", -1, 1, 0, 2, 31.0),
    Sketcher.Constraint("DistanceY", -1, 1, 0, 2, 9.0),
])
sketch15.setExpression("Constraints[8]", "Params.sketch15_width")
sketch15.setExpression("Constraints[9]", "Params.sketch15_height")
pad15 = doc.addObject("PartDesign::Pad", "Pad014")
body20.addObject(pad15)
pad15.Profile = sketch15
pad15.setExpression("Length", "Params.pad15_length")
doc.recompute()

boolean17 = doc.addObject("PartDesign::Boolean", "Boolean016")
body20.addObject(boolean17)
boolean17.Type = "Fuse"
boolean17.addObjects([body18])
doc.recompute()

boolean18 = doc.addObject("PartDesign::Boolean", "Boolean017")
body20.addObject(boolean18)
boolean18.Type = "Fuse"
boolean18.addObjects([body19])
body21 = doc.addObject("PartDesign::Body", "Body020")
doc.recompute()

body20.Placement = App.Placement(App.Vector(0, 0, 0), App.Rotation(App.Vector(1, 0, 0), 90))
boolean19 = doc.addObject("PartDesign::Boolean", "Boolean018")
body21.addObject(boolean19)
boolean19.Type = "Fuse"
boolean19.addObjects([body20])
body22 = doc.addObject("PartDesign::Body", "Body021")
doc.recompute()

body21.Placement = App.Placement(App.Vector(37.5, -11, -4), App.Rotation(App.Vector(0, 0, 1), 180))
boolean20 = doc.addObject("PartDesign::Boolean", "Boolean019")
body22.addObject(boolean20)
boolean20.Type = "Fuse"
boolean20.addObjects([body21])
body23 = doc.addObject("PartDesign::Body", "Body022")

sketch16 = doc.addObject("Sketcher::SketchObject", "Sketch015")
body23.addObject(sketch16)
sketch16.AttachmentSupport = (doc.getObject("XY_Plane022"), [""])
sketch16.MapMode = "FlatFace"
sketch16.AttachmentOffset = App.Placement(App.Vector(0, 0, 3), App.Rotation())
add_polygon(sketch16, [(34, 10.8), (31.2, 9.1), (31.2, 5.9), (34, 4.2), (36.8, 5.9), (36.8, 9.1)])
sketch16.addConstraint([
    Sketcher.Constraint("Vertical", 1),
    Sketcher.Constraint("Vertical", 4),
    Sketcher.Constraint("Parallel", 0, 3),
    Sketcher.Constraint("Parallel", 2, 5),
    Sketcher.Constraint("Horizontal", 1, 2, 3, 2),
    Sketcher.Constraint("Horizontal", 0, 2, 4, 2),
    Sketcher.Constraint("Vertical", 2, 2, 5, 2),
    Sketcher.Constraint("Angle", 0, Q("-150.000004 deg")),
    Sketcher.Constraint("DistanceX", -1, 1, 2, 2, 34.0),
    Sketcher.Constraint("DistanceY", 1, 2, 1, 1, 3.25),
    Sketcher.Constraint("DistanceY", 2, 2, 5, 2, 6.5),
    Sketcher.Constraint("DistanceY", -1, 1, 2, 2, 4.25),
])
sketch16.setExpression("Constraints[15]", "Params.sketch16_height")
pad16 = doc.addObject("PartDesign::Pad", "Pad015")
body23.addObject(pad16)
pad16.Profile = sketch16
pad16.setExpression("Length", "Params.pad16_length")
body24 = doc.addObject("PartDesign::Body", "Body023")

sketch17 = doc.addObject("Sketcher::SketchObject", "Sketch016")
body24.addObject(sketch17)
sketch17.AttachmentSupport = (doc.getObject("XY_Plane023"), [""])
sketch17.MapMode = "FlatFace"
sketch17.AttachmentOffset = App.Placement(App.Vector(0, 0, -1), App.Rotation())
sketch17.addGeometry(Part.Circle(App.Vector(34, 7.5, 0), App.Vector(0, 0, 1), 1.8), False)
sketch17.addConstraint([
    Sketcher.Constraint("Diameter", 0, 3.5),
    Sketcher.Constraint("DistanceX", -1, 1, 0, 3, 34.0),
    Sketcher.Constraint("DistanceY", -1, 1, 0, 3, 7.5),
])
sketch17.setExpression("Constraints[0]", "Params.sketch17_diameter")
pad17 = doc.addObject("PartDesign::Pad", "Pad016")
body24.addObject(pad17)
pad17.Profile = sketch17
pad17.setExpression("Length", "Params.pad17_length")
body25 = doc.addObject("PartDesign::Body", "Body024")

sketch18 = doc.addObject("Sketcher::SketchObject", "Sketch017")
body25.addObject(sketch18)
sketch18.AttachmentSupport = (doc.getObject("XY_Plane024"), [""])
sketch18.MapMode = "FlatFace"
sketch18.AttachmentOffset = App.Placement(App.Vector(0, 0, 3), App.Rotation())
add_polygon(sketch18, [(31, 29), (31, 9), (37, 9), (37, 29)])
sketch18.addConstraint([
    Sketcher.Constraint("Vertical", 0),
    Sketcher.Constraint("Horizontal", 1),
    Sketcher.Constraint("Vertical", 2),
    Sketcher.Constraint("Horizontal", 3),
    Sketcher.Constraint("DistanceX", 1, 1, 1, 2, 6.0),
    Sketcher.Constraint("DistanceY", 0, 2, 0, 1, 20.0),
    Sketcher.Constraint("DistanceX", -1, 1, 0, 2, 31.0),
    Sketcher.Constraint("DistanceY", -1, 1, 0, 2, 9.0),
])
sketch18.setExpression("Constraints[8]", "Params.sketch18_width")
sketch18.setExpression("Constraints[9]", "Params.sketch18_height")
pad18 = doc.addObject("PartDesign::Pad", "Pad017")
body25.addObject(pad18)
pad18.Profile = sketch18
pad18.setExpression("Length", "Params.pad18_length")
doc.recompute()

boolean21 = doc.addObject("PartDesign::Boolean", "Boolean020")
body25.addObject(boolean21)
boolean21.Type = "Fuse"
boolean21.addObjects([body23])
doc.recompute()

boolean22 = doc.addObject("PartDesign::Boolean", "Boolean021")
body25.addObject(boolean22)
boolean22.Type = "Fuse"
boolean22.addObjects([body24])
body26 = doc.addObject("PartDesign::Body", "Body025")
doc.recompute()

body25.Placement = App.Placement(App.Vector(0, 0, 0), App.Rotation(App.Vector(1, 0, 0), 90))
boolean23 = doc.addObject("PartDesign::Boolean", "Boolean022")
body26.addObject(boolean23)
boolean23.Type = "Fuse"
boolean23.addObjects([body25])
body27 = doc.addObject("PartDesign::Body", "Body026")
body27.AllowCompound = True
doc.recompute()

body26.Placement = App.Placement(App.Vector(79.5, -11, -4), App.Rotation(App.Vector(0, 0, 1), 180))
boolean24 = doc.addObject("PartDesign::Boolean", "Boolean023")
body27.addObject(boolean24)
boolean24.Type = "Fuse"
boolean24.addObjects([body26])
doc.recompute()

boolean25 = doc.addObject("PartDesign::Boolean", "Boolean024")
body27.addObject(boolean25)
boolean25.Type = "Fuse"
boolean25.addObjects([body17])
doc.recompute()

boolean26 = doc.addObject("PartDesign::Boolean", "Boolean025")
body27.addObject(boolean26)
boolean26.Type = "Fuse"
boolean26.addObjects([body22])
body28 = doc.addObject("PartDesign::Body", "Body027")

sketch19 = doc.addObject("Sketcher::SketchObject", "Sketch018")
body28.addObject(sketch19)
sketch19.AttachmentSupport = (doc.getObject("XZ_Plane027"), [""])
sketch19.MapMode = "FlatFace"
sketch19.AttachmentOffset = App.Placement(App.Vector(0, 0, -8), App.Rotation())
sketch19.addGeometry(Part.Circle(App.Vector(45.7, 3.2, 0), App.Vector(0, 0, 1), 1.5), False)
sketch19.addConstraint([
    Sketcher.Constraint("Diameter", 0, 3.0),
    Sketcher.Constraint("DistanceX", -1, 1, 0, 3, 45.7),
    Sketcher.Constraint("DistanceY", -1, 1, 0, 3, 3.2),
])
sketch19.setExpression("Constraints[0]", "Params.sketch19_diameter")
pad19 = doc.addObject("PartDesign::Pad", "Pad018")
body28.addObject(pad19)
pad19.Profile = sketch19
pad19.setExpression("Length", "Params.pad19_length")
body29 = doc.addObject("PartDesign::Body", "Body028")
body29.AllowCompound = True

sketch20 = doc.addObject("Sketcher::SketchObject", "Sketch019")
body29.addObject(sketch20)
sketch20.AttachmentSupport = (doc.getObject("XZ_Plane028"), [""])
sketch20.MapMode = "FlatFace"
sketch20.AttachmentOffset = App.Placement(App.Vector(0, 0, -8), App.Rotation())
sketch20.addGeometry(Part.Circle(App.Vector(3.2, 3.2, 0), App.Vector(0, 0, 1), 1.5), False)
sketch20.addConstraint([
    Sketcher.Constraint("Diameter", 0, 3.0),
    Sketcher.Constraint("DistanceX", -1, 1, 0, 3, 3.2),
    Sketcher.Constraint("DistanceY", -1, 1, 0, 3, 3.2),
])
sketch20.setExpression("Constraints[0]", "Params.sketch20_diameter")
pad20 = doc.addObject("PartDesign::Pad", "Pad019")
body29.addObject(pad20)
pad20.Profile = sketch20
pad20.setExpression("Length", "Params.pad20_length")
doc.recompute()

boolean27 = doc.addObject("PartDesign::Boolean", "Boolean026")
body29.addObject(boolean27)
boolean27.Type = "Fuse"
boolean27.addObjects([body28])
body30 = doc.addObject("PartDesign::Body", "Body029")

sketch21 = doc.addObject("Sketcher::SketchObject", "Sketch020")
body30.addObject(sketch21)
sketch21.AttachmentSupport = (doc.getObject("XY_Plane029"), [""])
sketch21.MapMode = "FlatFace"
sketch21.AttachmentOffset = App.Placement(App.Vector(0, 0, 1.2), App.Rotation())
add_polygon(sketch21, [(1, 12), (1, 2), (48, 2), (48, 12)])
sketch21.addConstraint([
    Sketcher.Constraint("Vertical", 0),
    Sketcher.Constraint("Horizontal", 1),
    Sketcher.Constraint("Vertical", 2),
    Sketcher.Constraint("Horizontal", 3),
    Sketcher.Constraint("DistanceY", 0, 2, 0, 1, 10.0),
    Sketcher.Constraint("DistanceX", 1, 1, 1, 2, 46.6),
    Sketcher.Constraint("DistanceX", -1, 1, 0, 2, 1.2),
    Sketcher.Constraint("DistanceY", -1, 1, 0, 2, 1.5),
])
sketch21.setExpression("Constraints[8]", "Params.sketch21_height")
sketch21.setExpression("Constraints[9]", "Params.sketch21_width")
pad21 = doc.addObject("PartDesign::Pad", "Pad020")
body30.addObject(pad21)
pad21.Profile = sketch21
pad21.setExpression("Length", "Params.pad21_length")
body31 = doc.addObject("PartDesign::Body", "Body030")

sketch22 = doc.addObject("Sketcher::SketchObject", "Sketch021")
body31.addObject(sketch22)
sketch22.AttachmentSupport = (doc.getObject("XY_Plane030"), [""])
sketch22.MapMode = "FlatFace"
add_polygon(sketch22, [(0, 5), (0, 0), (49, 0), (49, 5)])
sketch22.addConstraint([
    Sketcher.Constraint("Vertical", 0),
    Sketcher.Constraint("Horizontal", 1),
    Sketcher.Constraint("Vertical", 2),
    Sketcher.Constraint("Horizontal", 3),
    Sketcher.Constraint("Coincident", 0, 2, -1, 1),
    Sketcher.Constraint("DistanceX", 1, 1, 1, 2, 49.0),
    Sketcher.Constraint("DistanceY", 0, 2, 0, 1, 5.0),
])
sketch22.setExpression("Constraints[9]", "Params.sketch22_width")
sketch22.setExpression("Constraints[10]", "Params.sketch22_height")
pad22 = doc.addObject("PartDesign::Pad", "Pad021")
body31.addObject(pad22)
pad22.Profile = sketch22
pad22.setExpression("Length", "Params.pad22_length")
doc.recompute()

boolean28 = doc.addObject("PartDesign::Boolean", "Boolean027")
body31.addObject(boolean28)
boolean28.Type = "Cut"
boolean28.addObjects([body30])
doc.recompute()

boolean29 = doc.addObject("PartDesign::Boolean", "Boolean028")
body31.addObject(boolean29)
boolean29.Type = "Cut"
boolean29.addObjects([body29])
body32 = doc.addObject("PartDesign::Body", "Body031")

sketch23 = doc.addObject("Sketcher::SketchObject", "Sketch022")
body32.addObject(sketch23)
sketch23.AttachmentSupport = (doc.getObject("XY_Plane031"), [""])
sketch23.MapMode = "FlatFace"
add_polygon(sketch23, [(0, 1), (0, -15), (49, -15), (49, 1)])
sketch23.addConstraint([
    Sketcher.Constraint("Vertical", 0),
    Sketcher.Constraint("Horizontal", 1),
    Sketcher.Constraint("Vertical", 2),
    Sketcher.Constraint("Horizontal", 3),
    Sketcher.Constraint("PointOnObject", 0, 2, -2),
    Sketcher.Constraint("DistanceX", 1, 1, 1, 2, 49.0),
    Sketcher.Constraint("DistanceY", 0, 2, 0, 1, 16.0),
    Sketcher.Constraint("DistanceY", 0, 2, -1, 1, 15.0),
])
sketch23.setExpression("Constraints[9]", "Params.sketch23_width")
sketch23.setExpression("Constraints[10]", "Params.sketch23_height")
pad23 = doc.addObject("PartDesign::Pad", "Pad022")
body32.addObject(pad23)
pad23.Profile = sketch23
pad23.setExpression("Length", "Params.pad23_length")
doc.recompute()

boolean30 = doc.addObject("PartDesign::Boolean", "Boolean029")
body32.addObject(boolean30)
boolean30.Type = "Fuse"
boolean30.addObjects([body31])
doc.recompute()

boolean31 = doc.addObject("PartDesign::Boolean", "Boolean030")
body32.addObject(boolean31)
boolean31.Type = "Cut"
boolean31.addObjects([body27])

doc.recompute()
